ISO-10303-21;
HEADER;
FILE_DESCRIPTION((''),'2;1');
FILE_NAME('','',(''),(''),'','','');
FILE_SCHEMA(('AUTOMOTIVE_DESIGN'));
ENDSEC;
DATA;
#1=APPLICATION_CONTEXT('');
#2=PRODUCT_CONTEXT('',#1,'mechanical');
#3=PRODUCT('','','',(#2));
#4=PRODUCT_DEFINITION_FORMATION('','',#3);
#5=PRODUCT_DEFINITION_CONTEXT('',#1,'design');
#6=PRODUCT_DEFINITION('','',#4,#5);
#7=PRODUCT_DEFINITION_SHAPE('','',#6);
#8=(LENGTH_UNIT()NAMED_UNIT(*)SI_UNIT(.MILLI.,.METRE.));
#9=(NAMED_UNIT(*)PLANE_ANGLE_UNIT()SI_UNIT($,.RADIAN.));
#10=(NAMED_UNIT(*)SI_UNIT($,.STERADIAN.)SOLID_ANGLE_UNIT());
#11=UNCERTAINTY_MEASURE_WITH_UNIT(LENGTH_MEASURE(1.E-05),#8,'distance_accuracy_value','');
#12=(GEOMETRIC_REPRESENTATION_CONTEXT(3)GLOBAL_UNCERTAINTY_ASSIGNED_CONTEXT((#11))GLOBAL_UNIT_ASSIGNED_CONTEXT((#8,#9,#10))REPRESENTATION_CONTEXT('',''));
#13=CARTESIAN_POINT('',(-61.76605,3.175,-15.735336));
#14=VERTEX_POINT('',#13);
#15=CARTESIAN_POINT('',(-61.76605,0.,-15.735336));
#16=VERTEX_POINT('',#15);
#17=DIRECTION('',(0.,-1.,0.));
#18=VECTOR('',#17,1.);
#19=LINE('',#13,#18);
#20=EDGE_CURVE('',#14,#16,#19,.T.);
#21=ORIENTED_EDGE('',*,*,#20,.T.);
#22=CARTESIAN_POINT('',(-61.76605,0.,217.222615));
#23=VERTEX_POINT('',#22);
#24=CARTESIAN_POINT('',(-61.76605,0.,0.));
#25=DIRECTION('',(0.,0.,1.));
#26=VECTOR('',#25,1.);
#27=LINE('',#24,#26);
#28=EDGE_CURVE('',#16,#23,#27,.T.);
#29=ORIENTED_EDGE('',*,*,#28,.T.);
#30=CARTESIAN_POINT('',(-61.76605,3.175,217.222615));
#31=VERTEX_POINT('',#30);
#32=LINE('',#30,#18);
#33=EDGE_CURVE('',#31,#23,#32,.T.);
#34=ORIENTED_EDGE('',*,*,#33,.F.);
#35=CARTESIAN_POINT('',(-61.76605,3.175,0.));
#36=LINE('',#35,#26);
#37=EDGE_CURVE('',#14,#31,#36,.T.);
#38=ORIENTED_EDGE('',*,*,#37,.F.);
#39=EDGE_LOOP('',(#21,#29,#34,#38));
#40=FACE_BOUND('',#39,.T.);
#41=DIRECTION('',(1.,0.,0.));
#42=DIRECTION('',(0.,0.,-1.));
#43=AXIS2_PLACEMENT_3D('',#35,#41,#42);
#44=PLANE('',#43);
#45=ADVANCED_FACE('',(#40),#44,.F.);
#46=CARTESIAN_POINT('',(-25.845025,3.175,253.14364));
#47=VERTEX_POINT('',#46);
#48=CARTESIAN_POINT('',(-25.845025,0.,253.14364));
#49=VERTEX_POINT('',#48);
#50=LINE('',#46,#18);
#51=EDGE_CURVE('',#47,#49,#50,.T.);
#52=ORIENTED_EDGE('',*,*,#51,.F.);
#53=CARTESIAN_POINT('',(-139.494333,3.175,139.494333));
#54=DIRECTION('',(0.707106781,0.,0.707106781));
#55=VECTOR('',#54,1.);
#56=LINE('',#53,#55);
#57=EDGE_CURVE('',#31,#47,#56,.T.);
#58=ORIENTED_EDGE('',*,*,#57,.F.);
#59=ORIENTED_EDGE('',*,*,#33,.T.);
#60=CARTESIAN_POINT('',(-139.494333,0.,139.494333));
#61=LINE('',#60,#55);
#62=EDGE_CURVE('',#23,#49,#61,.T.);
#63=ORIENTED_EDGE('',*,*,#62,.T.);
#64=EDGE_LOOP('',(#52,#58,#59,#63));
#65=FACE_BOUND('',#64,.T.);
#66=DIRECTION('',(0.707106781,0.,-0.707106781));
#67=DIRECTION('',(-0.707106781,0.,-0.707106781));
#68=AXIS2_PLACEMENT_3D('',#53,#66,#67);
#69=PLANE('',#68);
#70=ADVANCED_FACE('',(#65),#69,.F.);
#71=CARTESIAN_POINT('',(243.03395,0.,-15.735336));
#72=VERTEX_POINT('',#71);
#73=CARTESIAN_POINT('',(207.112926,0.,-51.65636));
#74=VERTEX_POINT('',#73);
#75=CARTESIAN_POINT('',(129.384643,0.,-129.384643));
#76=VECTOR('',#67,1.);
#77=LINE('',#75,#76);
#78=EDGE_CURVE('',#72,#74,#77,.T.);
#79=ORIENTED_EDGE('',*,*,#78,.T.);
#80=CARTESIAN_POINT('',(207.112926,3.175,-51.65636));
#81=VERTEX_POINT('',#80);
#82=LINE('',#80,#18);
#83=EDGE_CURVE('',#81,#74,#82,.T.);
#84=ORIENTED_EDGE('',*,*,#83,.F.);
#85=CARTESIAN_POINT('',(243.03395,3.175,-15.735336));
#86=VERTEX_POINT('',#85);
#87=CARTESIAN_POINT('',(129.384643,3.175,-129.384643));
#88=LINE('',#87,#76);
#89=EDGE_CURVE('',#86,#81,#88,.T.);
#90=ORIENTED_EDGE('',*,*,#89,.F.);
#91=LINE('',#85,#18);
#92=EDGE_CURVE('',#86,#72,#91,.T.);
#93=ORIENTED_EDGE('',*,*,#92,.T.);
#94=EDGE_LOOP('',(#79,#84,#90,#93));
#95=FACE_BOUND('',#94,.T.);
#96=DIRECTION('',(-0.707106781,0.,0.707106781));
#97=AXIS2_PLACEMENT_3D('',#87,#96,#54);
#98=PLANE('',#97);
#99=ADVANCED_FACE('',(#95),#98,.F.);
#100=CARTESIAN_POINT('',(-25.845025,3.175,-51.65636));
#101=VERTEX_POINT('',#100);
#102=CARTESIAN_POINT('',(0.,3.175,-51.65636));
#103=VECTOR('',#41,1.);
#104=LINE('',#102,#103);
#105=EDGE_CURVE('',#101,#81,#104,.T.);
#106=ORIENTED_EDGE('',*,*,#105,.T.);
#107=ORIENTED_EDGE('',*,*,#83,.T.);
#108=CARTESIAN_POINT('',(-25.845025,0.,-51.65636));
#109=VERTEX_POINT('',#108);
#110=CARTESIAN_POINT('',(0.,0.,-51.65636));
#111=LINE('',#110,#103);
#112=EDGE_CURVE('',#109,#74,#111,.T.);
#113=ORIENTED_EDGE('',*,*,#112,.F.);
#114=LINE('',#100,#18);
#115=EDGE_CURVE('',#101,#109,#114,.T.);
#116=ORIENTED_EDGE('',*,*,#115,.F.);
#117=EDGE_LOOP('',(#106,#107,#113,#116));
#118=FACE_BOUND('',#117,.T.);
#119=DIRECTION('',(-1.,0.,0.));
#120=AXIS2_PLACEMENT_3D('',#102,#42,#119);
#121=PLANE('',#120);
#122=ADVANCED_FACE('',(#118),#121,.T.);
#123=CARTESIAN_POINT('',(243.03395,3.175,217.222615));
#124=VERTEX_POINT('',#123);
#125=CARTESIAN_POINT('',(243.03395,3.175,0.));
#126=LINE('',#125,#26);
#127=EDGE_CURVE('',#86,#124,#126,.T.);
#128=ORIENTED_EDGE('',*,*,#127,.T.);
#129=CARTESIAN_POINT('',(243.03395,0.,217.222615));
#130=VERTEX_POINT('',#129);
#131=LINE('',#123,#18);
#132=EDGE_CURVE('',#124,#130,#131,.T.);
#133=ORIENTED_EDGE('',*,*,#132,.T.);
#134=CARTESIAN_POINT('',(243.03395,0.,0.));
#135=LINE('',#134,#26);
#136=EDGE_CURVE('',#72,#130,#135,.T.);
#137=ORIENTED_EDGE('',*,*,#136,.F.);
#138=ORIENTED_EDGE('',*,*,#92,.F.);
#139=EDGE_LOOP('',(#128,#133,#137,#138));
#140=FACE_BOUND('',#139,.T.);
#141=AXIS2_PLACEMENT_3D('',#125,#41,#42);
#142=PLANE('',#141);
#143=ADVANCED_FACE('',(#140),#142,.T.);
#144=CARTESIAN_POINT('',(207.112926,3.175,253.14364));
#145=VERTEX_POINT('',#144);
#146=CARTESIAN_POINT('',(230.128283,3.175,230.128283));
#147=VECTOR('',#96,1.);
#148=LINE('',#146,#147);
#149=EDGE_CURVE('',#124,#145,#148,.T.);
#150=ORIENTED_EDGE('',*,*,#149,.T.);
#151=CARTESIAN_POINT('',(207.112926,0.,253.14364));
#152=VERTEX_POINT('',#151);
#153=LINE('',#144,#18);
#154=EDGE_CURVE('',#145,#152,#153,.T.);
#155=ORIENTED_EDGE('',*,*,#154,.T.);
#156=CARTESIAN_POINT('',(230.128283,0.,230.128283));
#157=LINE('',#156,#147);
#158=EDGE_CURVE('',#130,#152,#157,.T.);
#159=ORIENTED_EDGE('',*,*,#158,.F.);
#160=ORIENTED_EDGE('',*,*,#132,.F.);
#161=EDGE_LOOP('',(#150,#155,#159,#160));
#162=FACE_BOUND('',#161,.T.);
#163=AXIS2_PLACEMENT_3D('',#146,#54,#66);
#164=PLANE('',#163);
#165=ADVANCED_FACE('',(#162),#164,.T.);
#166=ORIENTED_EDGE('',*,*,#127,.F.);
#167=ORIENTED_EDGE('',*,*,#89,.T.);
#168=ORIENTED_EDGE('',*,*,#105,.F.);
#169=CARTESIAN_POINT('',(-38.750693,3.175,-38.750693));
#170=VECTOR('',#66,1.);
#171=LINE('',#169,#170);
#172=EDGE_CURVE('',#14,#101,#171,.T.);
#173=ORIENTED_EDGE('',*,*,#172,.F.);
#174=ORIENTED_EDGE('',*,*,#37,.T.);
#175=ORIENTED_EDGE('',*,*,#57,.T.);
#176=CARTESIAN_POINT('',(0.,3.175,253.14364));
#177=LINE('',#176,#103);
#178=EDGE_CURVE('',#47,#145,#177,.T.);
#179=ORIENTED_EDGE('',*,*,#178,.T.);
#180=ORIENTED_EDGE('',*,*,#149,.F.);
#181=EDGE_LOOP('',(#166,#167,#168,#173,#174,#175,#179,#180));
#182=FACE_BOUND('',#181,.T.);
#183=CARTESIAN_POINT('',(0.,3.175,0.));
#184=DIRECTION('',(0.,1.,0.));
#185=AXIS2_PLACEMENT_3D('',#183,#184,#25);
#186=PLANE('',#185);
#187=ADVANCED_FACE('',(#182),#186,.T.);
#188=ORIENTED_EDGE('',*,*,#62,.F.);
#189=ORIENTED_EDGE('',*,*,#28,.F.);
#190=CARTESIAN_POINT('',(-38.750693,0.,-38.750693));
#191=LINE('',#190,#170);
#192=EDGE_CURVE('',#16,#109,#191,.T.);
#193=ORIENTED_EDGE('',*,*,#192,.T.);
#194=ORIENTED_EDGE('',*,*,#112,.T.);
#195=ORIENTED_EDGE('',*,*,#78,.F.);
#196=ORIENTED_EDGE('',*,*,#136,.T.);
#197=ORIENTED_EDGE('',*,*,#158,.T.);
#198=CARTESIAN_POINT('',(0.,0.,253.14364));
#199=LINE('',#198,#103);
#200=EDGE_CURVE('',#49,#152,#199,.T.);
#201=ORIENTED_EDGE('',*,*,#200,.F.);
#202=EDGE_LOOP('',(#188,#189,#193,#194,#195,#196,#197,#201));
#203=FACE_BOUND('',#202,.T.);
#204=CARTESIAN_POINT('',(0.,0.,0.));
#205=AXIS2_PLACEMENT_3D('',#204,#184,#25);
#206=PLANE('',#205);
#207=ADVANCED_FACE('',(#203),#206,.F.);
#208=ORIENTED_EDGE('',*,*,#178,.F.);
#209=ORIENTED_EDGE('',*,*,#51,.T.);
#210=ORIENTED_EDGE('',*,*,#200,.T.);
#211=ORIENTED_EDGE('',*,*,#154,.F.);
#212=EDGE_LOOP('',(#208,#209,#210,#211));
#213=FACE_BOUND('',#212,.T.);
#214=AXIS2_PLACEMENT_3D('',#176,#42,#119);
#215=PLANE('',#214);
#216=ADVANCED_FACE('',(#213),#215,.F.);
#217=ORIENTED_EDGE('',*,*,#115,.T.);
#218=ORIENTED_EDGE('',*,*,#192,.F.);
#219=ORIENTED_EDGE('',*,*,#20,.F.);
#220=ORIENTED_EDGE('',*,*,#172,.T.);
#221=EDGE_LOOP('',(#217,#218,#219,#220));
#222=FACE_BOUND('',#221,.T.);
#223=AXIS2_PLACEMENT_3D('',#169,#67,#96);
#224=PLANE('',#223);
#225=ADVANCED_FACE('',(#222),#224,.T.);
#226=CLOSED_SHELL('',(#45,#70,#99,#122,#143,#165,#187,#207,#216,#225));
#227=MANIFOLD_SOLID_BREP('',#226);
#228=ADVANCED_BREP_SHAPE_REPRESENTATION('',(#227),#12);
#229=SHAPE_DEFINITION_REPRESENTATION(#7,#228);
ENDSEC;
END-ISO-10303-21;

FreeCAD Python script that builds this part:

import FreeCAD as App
import Part
import Sketcher

V = App.Vector
Q = App.Units.Quantity

doc = App.newDocument("Part")
body = doc.addObject("PartDesign::Body", "Body")

# Sketch on XZ plane
sketch1 = doc.addObject("Sketcher::SketchObject", "Sketch")
body.addObject(sketch1)
sketch1.AttachmentSupport = (doc.XZ_Plane, [""])
sketch1.MapMode = "FlatFace"
sketch1.addGeometry([
    Part.LineSegment(V(-26, -52, 0), V(-62, -16, 0)),  # 0
    Part.LineSegment(V(-62, -16, 0), V(-62, 217, 0)),  # 1
    Part.LineSegment(V(-62, 217, 0), V(-26, 253, 0)),  # 2
    Part.LineSegment(V(-26, 253, 0), V(207, 253, 0)),  # 3
    Part.LineSegment(V(207, 253, 0), V(243, 217, 0)),  # 4
    Part.LineSegment(V(243, 217, 0), V(243, -16, 0)),  # 5
    Part.LineSegment(V(243, -16, 0), V(207, -52, 0)),  # 6
    Part.LineSegment(V(207, -52, 0), V(-26, -52, 0)),  # 7
], False)
sketch1.addConstraint([
    Sketcher.Constraint("Coincident", 0, 2, 1, 1),
    Sketcher.Constraint("Coincident", 1, 2, 2, 1),
    Sketcher.Constraint("Coincident", 2, 2, 3, 1),
    Sketcher.Constraint("Coincident", 3, 2, 4, 1),
    Sketcher.Constraint("Coincident", 4, 2, 5, 1),
    Sketcher.Constraint("Coincident", 5, 2, 6, 1),
    Sketcher.Constraint("Coincident", 6, 2, 7, 1),
    Sketcher.Constraint("Coincident", 7, 2, 0, 1),
    Sketcher.Constraint("Vertical", 1),
    Sketcher.Constraint("Horizontal", 3),
    Sketcher.Constraint("Vertical", 5),
    Sketcher.Constraint("Horizontal", 7),
    Sketcher.Constraint("Perpendicular", 0, 2),
    Sketcher.Constraint("Perpendicular", 2, 4),
    Sketcher.Constraint("Perpendicular", 4, 6),
    Sketcher.Constraint("Horizontal", 1, 2, 4, 2),
    Sketcher.Constraint("Horizontal", 0, 2, 5, 2),
    Sketcher.Constraint("Vertical", 3, 2, 6, 2),
    Sketcher.Constraint("Vertical", 2, 2, 7, 2),
    Sketcher.Constraint("Equal", 7, 1),
    Sketcher.Constraint("Distance", 0, Q("2 in")),
    Sketcher.Constraint("DistanceX", 1, 2, 4, 2, Q("12 in")),
    Sketcher.Constraint("DistanceX", 0, 2, -1, 1, 61.76605),
    Sketcher.Constraint("DistanceY", -1, 1, 2, 2, 253.14364),
])
pad1 = doc.addObject("PartDesign::Pad", "Pad")
body.addObject(pad1)
pad1.Profile = sketch1
pad1.Length = Q("0.125 in")
pad1.Reversed = True

doc.recompute()
